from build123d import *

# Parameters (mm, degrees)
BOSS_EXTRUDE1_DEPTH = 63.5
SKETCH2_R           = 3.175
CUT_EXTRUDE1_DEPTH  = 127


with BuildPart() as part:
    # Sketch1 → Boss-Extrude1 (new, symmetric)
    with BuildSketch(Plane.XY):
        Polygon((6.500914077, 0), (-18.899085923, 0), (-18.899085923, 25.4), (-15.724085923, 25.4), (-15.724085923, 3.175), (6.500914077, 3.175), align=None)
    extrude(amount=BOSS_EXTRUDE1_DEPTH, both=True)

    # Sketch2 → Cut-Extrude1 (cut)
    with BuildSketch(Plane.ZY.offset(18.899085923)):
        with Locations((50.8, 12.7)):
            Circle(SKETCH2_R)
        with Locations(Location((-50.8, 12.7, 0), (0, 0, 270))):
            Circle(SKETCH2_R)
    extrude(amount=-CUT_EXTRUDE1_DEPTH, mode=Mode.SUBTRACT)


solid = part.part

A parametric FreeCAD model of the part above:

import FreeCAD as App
import Part
import Sketcher
Q = App.Units.Quantity

doc = App.newDocument("Part")
params = doc.addObject("Spreadsheet::Sheet", "Params")
for row, (alias, value) in enumerate([
    ("sketch1_width", "1 in"),
    ("sketch1_width2", "0.875 in"),
    ("pad1_length", "5 in"),
    ("sketch2_diameter", "0.25 in"),
    ("pocket1_length", "5 in"),
], start=1):
    params.set(f"A{row}", alias)
    params.set(f"B{row}", "=" + value)
    params.setAlias(f"B{row}", alias)

body = doc.addObject("PartDesign::Body", "Body")

sketch1 = body.newObject("Sketcher::SketchObject", "Sketch")
sketch1.AttachmentSupport = (doc.getObject("XY_Plane"), [""])
sketch1.MapMode = "FlatFace"
sketch1.addGeometry([
    Part.LineSegment(App.Vector(-18.9, 0, 0), App.Vector(6.5, 0, 0)),
    Part.LineSegment(App.Vector(6.5, 0, 0), App.Vector(6.5, 3.2, 0)),
    Part.LineSegment(App.Vector(6.5, 3.2, 0), App.Vector(-15.7, 3.2, 0)),
    Part.LineSegment(App.Vector(-15.7, 3.2, 0), App.Vector(-15.7, 25.4, 0)),
    Part.LineSegment(App.Vector(-15.7, 25.4, 0), App.Vector(-18.9, 25.4, 0)),
    Part.LineSegment(App.Vector(-18.9, 25.4, 0), App.Vector(-18.9, 0, 0)),
], False)
sketch1.addConstraint([
    Sketcher.Constraint("Coincident", 0, 2, 1, 1),
    Sketcher.Constraint("Coincident", 1, 2, 2, 1),
    Sketcher.Constraint("Coincident", 2, 2, 3, 1),
    Sketcher.Constraint("Coincident", 3, 2, 4, 1),
    Sketcher.Constraint("Coincident", 4, 2, 5, 1),
    Sketcher.Constraint("Coincident", 5, 2, 0, 1),
    Sketcher.Constraint("Horizontal", 0),
    Sketcher.Constraint("Vertical", 1),
    Sketcher.Constraint("Horizontal", 2),
    Sketcher.Constraint("Vertical", 3),
    Sketcher.Constraint("Horizontal", 4),
    Sketcher.Constraint("Vertical", 5),
    Sketcher.Constraint("PointOnObject", 0, 2, -1),
    Sketcher.Constraint("Equal", 4, 1),
    Sketcher.Constraint("Equal", 2, 3),
    Sketcher.Constraint("DistanceX", 0, 1, 0, 2, Q("1 in")),
    Sketcher.Constraint("DistanceX", 2, 2, 2, 1, Q("0.875 in")),
    Sketcher.Constraint("DistanceX", -1, 1, 0, 2, 6.500914),
])
sketch1.setExpression("Constraints[15]", "Params.sketch1_width")
sketch1.setExpression("Constraints[16]", "Params.sketch1_width2")
pad1 = body.newObject("PartDesign::Pad", "Pad")
pad1.Profile = sketch1
pad1.setExpression("Length", "Params.pad1_length")
pad1.Midplane = True

sketch2 = body.newObject("Sketcher::SketchObject", "Sketch001")
sketch2.AttachmentSupport = (doc.getObject("YZ_Plane"), [""])
sketch2.MapMode = "FlatFace"
sketch2.AttachmentOffset = App.Placement(App.Vector(0, 0, -18.899086), App.Rotation())
sketch2.addGeometry([
    Part.Circle(App.Vector(12.7, 50.8, 0), App.Vector(0, 0, 1), 3.2),
    Part.Circle(App.Vector(12.7, -50.8, 0), App.Vector(0, 0, 1), 3.2),
], False)
sketch2.addConstraint([
    Sketcher.Constraint("Equal", 0, 1),
    Sketcher.Constraint("Symmetric", 0, 3, 1, 3, -1),
    Sketcher.Constraint("Diameter", 0, Q("0.25 in")),
    Sketcher.Constraint("DistanceY", -1, 1, 0, 3, Q("2 in")),
    Sketcher.Constraint("DistanceX", -1, 1, 0, 3, Q("0.5 in")),
])
sketch2.setExpression("Constraints[2]", "Params.sketch2_diameter")
pocket1 = body.newObject("PartDesign::Pocket", "Pocket")
pocket1.Profile = sketch2
pocket1.setExpression("Length", "Params.pocket1_length")
pocket1.Reversed = True

doc.recompute()
